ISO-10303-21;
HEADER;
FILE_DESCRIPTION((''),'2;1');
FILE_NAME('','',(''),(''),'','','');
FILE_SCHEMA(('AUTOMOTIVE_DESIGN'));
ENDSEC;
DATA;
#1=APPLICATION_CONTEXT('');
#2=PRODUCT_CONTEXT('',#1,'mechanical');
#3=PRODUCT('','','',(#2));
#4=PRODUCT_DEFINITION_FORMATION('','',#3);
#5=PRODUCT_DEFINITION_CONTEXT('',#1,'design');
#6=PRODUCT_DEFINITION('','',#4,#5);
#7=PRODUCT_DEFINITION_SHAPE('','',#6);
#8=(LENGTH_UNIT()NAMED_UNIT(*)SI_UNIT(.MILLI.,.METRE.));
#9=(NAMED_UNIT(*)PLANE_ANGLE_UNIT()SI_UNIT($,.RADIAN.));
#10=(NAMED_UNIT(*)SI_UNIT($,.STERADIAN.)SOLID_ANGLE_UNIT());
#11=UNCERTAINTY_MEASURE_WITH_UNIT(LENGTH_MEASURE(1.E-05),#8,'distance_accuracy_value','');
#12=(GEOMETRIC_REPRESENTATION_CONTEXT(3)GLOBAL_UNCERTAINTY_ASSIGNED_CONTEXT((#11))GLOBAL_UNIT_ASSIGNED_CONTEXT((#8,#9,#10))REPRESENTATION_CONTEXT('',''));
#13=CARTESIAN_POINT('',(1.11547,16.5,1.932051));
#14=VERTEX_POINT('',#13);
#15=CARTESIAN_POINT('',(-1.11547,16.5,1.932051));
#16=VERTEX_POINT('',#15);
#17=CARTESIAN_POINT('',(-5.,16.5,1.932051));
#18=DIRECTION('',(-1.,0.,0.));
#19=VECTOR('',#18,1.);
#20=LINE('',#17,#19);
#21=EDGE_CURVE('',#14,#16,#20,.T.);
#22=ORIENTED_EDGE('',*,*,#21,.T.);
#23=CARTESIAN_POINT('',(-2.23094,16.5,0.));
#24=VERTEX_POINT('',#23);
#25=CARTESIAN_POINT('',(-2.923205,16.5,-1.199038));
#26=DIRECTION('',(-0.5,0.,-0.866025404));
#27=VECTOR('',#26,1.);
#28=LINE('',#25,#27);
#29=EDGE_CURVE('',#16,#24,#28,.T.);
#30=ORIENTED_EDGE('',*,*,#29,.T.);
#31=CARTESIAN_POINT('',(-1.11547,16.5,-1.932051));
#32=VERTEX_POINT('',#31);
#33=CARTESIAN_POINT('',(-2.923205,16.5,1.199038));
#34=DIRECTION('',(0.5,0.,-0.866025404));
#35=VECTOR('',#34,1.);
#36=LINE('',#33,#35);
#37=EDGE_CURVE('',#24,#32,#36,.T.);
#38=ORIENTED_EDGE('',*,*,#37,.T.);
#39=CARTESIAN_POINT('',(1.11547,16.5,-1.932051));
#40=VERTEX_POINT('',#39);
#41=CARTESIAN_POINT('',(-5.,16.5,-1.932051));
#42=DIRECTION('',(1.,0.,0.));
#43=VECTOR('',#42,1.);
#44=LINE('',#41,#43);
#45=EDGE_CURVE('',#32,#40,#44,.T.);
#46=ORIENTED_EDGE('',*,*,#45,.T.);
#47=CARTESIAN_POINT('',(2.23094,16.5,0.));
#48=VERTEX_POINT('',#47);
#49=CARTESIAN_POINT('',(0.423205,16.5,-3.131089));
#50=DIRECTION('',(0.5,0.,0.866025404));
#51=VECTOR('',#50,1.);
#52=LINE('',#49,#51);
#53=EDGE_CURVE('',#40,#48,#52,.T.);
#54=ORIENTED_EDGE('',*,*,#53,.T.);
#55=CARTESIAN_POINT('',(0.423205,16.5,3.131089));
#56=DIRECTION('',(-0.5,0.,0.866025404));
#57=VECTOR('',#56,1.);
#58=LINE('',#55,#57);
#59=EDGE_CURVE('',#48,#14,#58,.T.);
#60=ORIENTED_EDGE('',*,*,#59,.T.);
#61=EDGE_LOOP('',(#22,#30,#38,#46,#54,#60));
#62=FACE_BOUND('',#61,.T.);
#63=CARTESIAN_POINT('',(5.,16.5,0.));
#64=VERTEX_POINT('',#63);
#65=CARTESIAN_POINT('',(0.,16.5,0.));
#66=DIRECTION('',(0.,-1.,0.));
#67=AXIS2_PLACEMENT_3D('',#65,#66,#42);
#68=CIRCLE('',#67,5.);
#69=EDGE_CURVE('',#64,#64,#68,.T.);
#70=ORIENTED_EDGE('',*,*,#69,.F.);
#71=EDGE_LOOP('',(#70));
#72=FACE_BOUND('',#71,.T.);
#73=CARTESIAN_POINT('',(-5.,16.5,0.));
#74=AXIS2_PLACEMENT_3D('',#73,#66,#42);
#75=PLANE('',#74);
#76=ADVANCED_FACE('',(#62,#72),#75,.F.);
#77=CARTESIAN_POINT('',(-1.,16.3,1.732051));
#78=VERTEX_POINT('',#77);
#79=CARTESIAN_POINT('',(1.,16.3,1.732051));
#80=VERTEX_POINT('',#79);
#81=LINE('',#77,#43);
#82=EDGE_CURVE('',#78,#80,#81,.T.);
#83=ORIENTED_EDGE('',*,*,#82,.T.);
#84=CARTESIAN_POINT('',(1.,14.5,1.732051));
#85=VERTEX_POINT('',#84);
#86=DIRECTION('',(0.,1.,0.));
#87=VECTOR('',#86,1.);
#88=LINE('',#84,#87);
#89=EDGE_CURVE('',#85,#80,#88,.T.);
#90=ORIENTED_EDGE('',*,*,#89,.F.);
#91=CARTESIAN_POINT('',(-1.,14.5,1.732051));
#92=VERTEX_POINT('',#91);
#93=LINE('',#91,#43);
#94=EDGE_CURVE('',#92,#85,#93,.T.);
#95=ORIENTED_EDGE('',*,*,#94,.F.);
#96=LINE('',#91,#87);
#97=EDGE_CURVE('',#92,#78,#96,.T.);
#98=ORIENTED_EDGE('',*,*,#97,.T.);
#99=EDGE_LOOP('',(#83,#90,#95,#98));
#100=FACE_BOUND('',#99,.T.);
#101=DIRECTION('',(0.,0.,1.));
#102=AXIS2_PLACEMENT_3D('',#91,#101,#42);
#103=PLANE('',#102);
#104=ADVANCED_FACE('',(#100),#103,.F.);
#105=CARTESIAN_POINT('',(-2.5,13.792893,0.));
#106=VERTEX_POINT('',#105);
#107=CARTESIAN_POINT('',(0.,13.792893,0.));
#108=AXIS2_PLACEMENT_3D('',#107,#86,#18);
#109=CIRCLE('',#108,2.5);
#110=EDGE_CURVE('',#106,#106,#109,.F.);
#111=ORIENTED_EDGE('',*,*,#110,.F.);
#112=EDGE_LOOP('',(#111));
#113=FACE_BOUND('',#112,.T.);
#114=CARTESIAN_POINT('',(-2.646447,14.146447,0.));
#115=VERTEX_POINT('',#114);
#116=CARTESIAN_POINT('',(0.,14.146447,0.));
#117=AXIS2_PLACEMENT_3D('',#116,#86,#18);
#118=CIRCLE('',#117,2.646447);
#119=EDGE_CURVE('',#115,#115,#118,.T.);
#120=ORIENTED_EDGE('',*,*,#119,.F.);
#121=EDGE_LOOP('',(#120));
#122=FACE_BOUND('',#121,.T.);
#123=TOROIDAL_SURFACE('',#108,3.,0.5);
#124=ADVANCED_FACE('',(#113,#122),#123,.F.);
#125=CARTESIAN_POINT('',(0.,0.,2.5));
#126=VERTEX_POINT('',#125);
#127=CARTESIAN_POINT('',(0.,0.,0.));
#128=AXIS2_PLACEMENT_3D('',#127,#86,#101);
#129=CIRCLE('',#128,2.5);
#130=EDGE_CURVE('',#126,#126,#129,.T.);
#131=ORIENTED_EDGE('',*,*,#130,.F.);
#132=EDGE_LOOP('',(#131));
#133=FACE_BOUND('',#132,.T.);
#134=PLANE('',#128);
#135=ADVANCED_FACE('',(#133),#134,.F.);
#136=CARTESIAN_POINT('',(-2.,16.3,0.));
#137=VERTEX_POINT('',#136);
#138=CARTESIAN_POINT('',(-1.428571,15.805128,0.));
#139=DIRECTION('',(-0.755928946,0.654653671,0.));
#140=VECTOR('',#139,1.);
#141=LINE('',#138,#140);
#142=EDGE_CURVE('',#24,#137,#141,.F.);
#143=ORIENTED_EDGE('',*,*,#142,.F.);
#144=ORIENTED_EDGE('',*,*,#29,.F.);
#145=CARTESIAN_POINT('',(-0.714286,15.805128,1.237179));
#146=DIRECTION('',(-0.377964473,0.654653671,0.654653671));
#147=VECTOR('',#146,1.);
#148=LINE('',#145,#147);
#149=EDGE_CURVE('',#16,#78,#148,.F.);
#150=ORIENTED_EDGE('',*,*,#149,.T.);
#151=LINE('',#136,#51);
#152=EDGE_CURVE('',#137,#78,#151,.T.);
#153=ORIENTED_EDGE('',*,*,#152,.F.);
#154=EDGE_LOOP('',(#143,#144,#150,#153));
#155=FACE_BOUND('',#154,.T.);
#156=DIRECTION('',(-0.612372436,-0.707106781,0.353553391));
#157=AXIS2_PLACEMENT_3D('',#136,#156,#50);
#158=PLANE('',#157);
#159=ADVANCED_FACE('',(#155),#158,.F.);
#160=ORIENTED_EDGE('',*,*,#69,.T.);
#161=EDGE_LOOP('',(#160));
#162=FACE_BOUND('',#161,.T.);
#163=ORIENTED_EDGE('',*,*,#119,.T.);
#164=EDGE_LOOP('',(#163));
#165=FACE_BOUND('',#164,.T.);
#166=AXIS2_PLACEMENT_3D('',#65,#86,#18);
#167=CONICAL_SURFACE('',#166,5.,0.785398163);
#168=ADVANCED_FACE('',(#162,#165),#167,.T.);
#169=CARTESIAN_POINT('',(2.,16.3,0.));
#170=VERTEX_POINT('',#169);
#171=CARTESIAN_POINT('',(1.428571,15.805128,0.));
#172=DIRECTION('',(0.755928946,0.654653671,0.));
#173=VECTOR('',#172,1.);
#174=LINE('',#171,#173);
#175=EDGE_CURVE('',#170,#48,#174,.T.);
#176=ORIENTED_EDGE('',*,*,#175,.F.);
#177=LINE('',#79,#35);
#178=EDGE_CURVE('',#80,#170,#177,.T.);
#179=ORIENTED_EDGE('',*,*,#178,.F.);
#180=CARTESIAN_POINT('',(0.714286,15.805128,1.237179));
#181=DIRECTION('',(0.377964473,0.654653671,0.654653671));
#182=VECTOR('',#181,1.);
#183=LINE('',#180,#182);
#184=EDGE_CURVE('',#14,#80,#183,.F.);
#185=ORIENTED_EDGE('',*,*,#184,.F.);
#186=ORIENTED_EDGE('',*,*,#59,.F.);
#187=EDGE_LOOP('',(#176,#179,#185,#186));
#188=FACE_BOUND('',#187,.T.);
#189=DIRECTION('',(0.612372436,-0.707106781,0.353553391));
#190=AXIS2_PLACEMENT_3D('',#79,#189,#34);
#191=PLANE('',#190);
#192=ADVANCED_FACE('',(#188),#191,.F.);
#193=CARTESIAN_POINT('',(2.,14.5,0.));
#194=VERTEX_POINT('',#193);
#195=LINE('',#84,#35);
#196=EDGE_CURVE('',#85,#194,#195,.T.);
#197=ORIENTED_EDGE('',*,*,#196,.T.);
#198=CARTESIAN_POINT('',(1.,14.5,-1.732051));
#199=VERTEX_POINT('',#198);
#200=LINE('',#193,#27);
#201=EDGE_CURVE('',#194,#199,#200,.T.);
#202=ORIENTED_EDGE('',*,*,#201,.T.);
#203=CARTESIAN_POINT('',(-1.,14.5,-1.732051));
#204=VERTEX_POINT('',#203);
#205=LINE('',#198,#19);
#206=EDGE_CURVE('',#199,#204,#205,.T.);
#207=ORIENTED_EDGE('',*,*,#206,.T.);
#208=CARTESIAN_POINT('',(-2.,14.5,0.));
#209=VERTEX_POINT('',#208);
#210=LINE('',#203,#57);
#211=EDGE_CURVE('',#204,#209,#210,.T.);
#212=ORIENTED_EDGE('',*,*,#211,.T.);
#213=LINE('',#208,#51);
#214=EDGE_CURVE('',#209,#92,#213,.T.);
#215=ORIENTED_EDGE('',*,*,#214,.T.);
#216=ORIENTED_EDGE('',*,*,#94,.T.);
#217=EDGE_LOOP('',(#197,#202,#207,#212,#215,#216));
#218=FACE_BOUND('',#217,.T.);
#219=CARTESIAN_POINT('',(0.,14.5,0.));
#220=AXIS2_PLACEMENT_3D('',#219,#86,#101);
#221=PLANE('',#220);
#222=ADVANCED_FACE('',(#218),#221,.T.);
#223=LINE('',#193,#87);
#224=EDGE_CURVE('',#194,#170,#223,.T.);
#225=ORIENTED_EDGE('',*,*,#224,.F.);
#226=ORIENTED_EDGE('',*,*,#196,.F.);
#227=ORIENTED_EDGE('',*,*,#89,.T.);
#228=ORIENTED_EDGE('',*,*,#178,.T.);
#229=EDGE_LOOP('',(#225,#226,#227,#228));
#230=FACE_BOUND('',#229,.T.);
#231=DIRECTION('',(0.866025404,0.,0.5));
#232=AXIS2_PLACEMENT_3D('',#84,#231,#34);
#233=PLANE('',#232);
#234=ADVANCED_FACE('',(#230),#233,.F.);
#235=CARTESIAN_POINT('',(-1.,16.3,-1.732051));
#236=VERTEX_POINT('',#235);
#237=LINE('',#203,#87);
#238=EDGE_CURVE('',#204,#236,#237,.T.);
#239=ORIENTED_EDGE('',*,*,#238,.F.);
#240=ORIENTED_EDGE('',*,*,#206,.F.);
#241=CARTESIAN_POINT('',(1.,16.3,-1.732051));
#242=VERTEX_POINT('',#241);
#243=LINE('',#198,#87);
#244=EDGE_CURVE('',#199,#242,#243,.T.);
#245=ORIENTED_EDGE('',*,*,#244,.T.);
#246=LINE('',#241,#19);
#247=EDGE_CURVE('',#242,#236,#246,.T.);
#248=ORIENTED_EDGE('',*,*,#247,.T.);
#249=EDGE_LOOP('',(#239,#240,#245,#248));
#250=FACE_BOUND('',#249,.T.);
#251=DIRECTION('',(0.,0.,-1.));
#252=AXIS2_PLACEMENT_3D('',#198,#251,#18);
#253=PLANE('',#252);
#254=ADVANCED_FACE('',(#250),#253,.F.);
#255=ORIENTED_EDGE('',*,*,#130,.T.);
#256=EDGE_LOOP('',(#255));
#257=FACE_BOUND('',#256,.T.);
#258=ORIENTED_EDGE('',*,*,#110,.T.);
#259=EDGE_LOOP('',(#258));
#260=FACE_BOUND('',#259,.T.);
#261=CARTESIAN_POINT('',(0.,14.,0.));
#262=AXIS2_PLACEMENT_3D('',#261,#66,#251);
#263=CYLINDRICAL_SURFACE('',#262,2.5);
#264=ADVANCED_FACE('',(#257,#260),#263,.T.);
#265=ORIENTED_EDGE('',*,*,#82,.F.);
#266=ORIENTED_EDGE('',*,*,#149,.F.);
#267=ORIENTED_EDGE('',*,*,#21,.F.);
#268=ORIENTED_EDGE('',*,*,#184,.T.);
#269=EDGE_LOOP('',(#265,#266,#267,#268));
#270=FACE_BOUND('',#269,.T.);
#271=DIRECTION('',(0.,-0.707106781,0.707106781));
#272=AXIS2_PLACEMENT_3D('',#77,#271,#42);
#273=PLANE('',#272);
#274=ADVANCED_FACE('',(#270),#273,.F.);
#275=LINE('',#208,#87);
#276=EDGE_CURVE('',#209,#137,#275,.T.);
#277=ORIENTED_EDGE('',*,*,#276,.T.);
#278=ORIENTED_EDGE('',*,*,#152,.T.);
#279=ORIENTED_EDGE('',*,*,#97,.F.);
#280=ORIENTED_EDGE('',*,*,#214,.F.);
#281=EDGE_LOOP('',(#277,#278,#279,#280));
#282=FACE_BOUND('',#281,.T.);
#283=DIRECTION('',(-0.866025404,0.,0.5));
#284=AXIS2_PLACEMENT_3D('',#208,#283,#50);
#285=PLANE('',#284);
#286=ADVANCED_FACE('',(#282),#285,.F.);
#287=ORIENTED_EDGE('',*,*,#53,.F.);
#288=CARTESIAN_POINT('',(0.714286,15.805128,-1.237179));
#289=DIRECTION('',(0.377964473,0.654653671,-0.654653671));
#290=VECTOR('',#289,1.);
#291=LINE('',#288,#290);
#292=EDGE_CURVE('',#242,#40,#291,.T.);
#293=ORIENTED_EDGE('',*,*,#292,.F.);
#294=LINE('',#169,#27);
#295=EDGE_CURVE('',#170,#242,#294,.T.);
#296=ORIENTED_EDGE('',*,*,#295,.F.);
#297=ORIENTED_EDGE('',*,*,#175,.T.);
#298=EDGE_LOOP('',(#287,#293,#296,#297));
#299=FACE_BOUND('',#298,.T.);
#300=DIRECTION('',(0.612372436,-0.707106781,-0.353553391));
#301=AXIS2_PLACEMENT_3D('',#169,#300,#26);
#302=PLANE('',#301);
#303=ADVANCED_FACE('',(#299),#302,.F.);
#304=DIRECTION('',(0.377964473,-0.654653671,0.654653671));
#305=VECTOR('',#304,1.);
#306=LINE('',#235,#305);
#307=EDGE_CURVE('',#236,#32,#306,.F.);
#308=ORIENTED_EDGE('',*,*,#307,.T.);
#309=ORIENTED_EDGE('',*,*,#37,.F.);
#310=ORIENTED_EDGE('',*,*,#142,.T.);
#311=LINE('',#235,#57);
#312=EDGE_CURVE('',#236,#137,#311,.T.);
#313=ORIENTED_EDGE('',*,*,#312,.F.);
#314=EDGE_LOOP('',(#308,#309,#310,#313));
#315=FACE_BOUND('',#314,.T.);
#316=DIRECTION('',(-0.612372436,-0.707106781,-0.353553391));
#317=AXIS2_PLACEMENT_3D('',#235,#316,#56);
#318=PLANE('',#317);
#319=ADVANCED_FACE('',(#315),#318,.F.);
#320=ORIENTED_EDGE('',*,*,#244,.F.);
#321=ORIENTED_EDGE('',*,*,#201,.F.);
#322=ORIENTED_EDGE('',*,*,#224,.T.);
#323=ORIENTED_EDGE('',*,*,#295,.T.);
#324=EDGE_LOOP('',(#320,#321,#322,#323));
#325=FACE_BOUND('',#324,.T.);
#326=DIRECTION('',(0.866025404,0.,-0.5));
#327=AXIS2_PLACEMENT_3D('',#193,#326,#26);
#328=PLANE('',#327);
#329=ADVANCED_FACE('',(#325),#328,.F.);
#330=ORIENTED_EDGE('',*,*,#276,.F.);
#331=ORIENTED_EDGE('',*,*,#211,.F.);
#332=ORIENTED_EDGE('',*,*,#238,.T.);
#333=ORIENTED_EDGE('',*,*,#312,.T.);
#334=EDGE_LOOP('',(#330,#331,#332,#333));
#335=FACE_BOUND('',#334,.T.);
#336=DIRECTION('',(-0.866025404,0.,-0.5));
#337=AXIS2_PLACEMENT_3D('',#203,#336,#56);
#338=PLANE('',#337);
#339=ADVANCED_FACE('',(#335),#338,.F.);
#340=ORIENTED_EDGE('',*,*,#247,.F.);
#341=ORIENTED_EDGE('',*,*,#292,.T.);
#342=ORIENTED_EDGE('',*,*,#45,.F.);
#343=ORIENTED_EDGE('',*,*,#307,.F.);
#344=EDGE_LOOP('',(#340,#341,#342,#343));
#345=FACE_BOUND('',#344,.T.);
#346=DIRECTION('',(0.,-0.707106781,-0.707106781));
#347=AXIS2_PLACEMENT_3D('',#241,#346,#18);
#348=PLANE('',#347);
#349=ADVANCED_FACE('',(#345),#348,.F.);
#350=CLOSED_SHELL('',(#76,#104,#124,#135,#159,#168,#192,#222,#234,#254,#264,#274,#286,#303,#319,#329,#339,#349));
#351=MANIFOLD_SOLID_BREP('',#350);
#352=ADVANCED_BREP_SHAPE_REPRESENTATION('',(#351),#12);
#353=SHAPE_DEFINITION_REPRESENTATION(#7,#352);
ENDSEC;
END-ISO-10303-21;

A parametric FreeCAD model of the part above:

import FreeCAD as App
import Part
import Sketcher

V = App.Vector
Q = App.Units.Quantity


def edges_at(feature, points):
    """Names of the edges that pass closest to the given points."""
    edges = feature.Shape.Edges
    near = lambda p: min(range(len(edges)), key=lambda i: edges[i].distToShape(Part.Vertex(*p))[0])
    return sorted({f"Edge{near(p) + 1}" for p in points})

doc = App.newDocument("Part")
body = doc.addObject("PartDesign::Body", "Body")

sketch1 = doc.addObject("Sketcher::SketchObject", "Sketch")
body.addObject(sketch1)
sketch1.AttachmentSupport = (doc.XZ_Plane, [""])
sketch1.MapMode = "FlatFace"
sketch1.addGeometry(Part.Circle(V(0, 0, 0), V(0, 0, 1), 2.5), False)
sketch1.addConstraint([
    Sketcher.Constraint("Coincident", 0, 3, -1, 1),
    Sketcher.Constraint("Diameter", 0, Q("5 mm")),
])
pad1 = doc.addObject("PartDesign::Pad", "Pad")
body.addObject(pad1)
pad1.Profile = sketch1
pad1.Length = 14
pad1.Reversed = True

sketch2 = doc.addObject("Sketcher::SketchObject", "Sketch001")
body.addObject(sketch2)
sketch2.AttachmentSupport = (doc.XY_Plane, [""])
sketch2.MapMode = "FlatFace"
sketch2.addGeometry([
    Part.LineSegment(V(-5, 16.5, 0), V(-2.5, 14, 0)),
    Part.LineSegment(V(-2.5, 14, 0), V(0, 14, 0)),
    Part.LineSegment(V(0, 14, 0), V(0, 16.5, 0)),
    Part.LineSegment(V(0, 16.5, 0), V(-5, 16.5, 0)),
], False)
sketch2.addConstraint([
    Sketcher.Constraint("Coincident", 0, 2, 1, 1),
    Sketcher.Constraint("Coincident", 1, 2, 2, 1),
    Sketcher.Constraint("Coincident", 2, 2, 3, 1),
    Sketcher.Constraint("Coincident", 3, 2, 0, 1),
    Sketcher.Constraint("Horizontal", 1),
    Sketcher.Constraint("Vertical", 2),
    Sketcher.Constraint("Horizontal", 3),
    Sketcher.Constraint("PointOnObject", 1, 2, -2),
    Sketcher.Constraint("Equal", 1, 2),
    Sketcher.Constraint("DistanceX", 3, 2, 3, 1, Q("5 mm")),
    Sketcher.Constraint("Angle", 0, Q("-45 deg")),
    Sketcher.Constraint("DistanceY", -1, 1, 0, 2, Q("14 mm")),
])
revolution = doc.addObject("PartDesign::Revolution", "Revolution")
body.addObject(revolution)
revolution.Profile = sketch2
revolution.ReferenceAxis = (sketch2, ["V_Axis"])
revolution.Angle = 360

sketch3 = doc.addObject("Sketcher::SketchObject", "Sketch002")
body.addObject(sketch3)
sketch3.AttachmentSupport = (doc.XZ_Plane, [""])
sketch3.MapMode = "FlatFace"
sketch3.AttachmentOffset = App.Placement(V(0, 0, -16.5), App.Rotation())
sketch3.addGeometry([
    Part.LineSegment(V(2, 0, 0), V(1, -1.7, 0)),
    Part.LineSegment(V(1, -1.7, 0), V(-1, -1.7, 0)),
    Part.LineSegment(V(-1, -1.7, 0), V(-2, 0, 0)),
    Part.LineSegment(V(-2, 0, 0), V(-1, 1.7, 0)),
    Part.LineSegment(V(-1, 1.7, 0), V(1, 1.7, 0)),
    Part.LineSegment(V(1, 1.7, 0), V(2, 0, 0)),
], False)
sketch3.addConstraint([
    Sketcher.Constraint("Coincident", 0, 2, 1, 1),
    Sketcher.Constraint("Coincident", 1, 2, 2, 1),
    Sketcher.Constraint("Coincident", 2, 2, 3, 1),
    Sketcher.Constraint("Coincident", 3, 2, 4, 1),
    Sketcher.Constraint("Coincident", 4, 2, 5, 1),
    Sketcher.Constraint("Coincident", 5, 2, 0, 1),
    Sketcher.Constraint("Horizontal", 1),
    Sketcher.Constraint("Horizontal", 4),
    Sketcher.Constraint("Symmetric", 0, 2, 3, 2, -1, 1),
    Sketcher.Constraint("Symmetric", 2, 2, 5, 2, -1, 1),
    Sketcher.Constraint("PointOnObject", 2, 2, -1),
    Sketcher.Constraint("Parallel", 2, 5),
    Sketcher.Constraint("Vertical", 1, 2, 3, 2),
    Sketcher.Constraint("DistanceX", 1, 2, 1, 1, Q("2 mm")),
    Sketcher.Constraint("Angle", 0, Q("-120 deg")),
    Sketcher.Constraint("Distance", 0, Q("2 mm")),
])
pocket1 = doc.addObject("PartDesign::Pocket", "Pocket")
body.addObject(pocket1)
pocket1.Profile = sketch3
pocket1.Length = 2
pocket1.Reversed = True
doc.recompute()

chamfer = doc.addObject("PartDesign::Chamfer", "Chamfer")
body.addObject(chamfer)
chamfer.Base = (pocket1, edges_at(pocket1, [
    (1.5, 16.5, 0.866),
    (1.5, 16.5, -0.866),
    (0, 16.5, -1.732),
    (-1.5, 16.5, -0.866),
    (-1.5, 16.5, 0.866),
    (0, 16.5, 1.732),
]))
chamfer.Size = 0.2
doc.recompute()

fillet = doc.addObject("PartDesign::Fillet", "Fillet")
body.addObject(fillet)
fillet.Base = (chamfer, edges_at(chamfer, [(0, 14, -2.5)]))
fillet.Radius = 0.5

doc.recompute()
